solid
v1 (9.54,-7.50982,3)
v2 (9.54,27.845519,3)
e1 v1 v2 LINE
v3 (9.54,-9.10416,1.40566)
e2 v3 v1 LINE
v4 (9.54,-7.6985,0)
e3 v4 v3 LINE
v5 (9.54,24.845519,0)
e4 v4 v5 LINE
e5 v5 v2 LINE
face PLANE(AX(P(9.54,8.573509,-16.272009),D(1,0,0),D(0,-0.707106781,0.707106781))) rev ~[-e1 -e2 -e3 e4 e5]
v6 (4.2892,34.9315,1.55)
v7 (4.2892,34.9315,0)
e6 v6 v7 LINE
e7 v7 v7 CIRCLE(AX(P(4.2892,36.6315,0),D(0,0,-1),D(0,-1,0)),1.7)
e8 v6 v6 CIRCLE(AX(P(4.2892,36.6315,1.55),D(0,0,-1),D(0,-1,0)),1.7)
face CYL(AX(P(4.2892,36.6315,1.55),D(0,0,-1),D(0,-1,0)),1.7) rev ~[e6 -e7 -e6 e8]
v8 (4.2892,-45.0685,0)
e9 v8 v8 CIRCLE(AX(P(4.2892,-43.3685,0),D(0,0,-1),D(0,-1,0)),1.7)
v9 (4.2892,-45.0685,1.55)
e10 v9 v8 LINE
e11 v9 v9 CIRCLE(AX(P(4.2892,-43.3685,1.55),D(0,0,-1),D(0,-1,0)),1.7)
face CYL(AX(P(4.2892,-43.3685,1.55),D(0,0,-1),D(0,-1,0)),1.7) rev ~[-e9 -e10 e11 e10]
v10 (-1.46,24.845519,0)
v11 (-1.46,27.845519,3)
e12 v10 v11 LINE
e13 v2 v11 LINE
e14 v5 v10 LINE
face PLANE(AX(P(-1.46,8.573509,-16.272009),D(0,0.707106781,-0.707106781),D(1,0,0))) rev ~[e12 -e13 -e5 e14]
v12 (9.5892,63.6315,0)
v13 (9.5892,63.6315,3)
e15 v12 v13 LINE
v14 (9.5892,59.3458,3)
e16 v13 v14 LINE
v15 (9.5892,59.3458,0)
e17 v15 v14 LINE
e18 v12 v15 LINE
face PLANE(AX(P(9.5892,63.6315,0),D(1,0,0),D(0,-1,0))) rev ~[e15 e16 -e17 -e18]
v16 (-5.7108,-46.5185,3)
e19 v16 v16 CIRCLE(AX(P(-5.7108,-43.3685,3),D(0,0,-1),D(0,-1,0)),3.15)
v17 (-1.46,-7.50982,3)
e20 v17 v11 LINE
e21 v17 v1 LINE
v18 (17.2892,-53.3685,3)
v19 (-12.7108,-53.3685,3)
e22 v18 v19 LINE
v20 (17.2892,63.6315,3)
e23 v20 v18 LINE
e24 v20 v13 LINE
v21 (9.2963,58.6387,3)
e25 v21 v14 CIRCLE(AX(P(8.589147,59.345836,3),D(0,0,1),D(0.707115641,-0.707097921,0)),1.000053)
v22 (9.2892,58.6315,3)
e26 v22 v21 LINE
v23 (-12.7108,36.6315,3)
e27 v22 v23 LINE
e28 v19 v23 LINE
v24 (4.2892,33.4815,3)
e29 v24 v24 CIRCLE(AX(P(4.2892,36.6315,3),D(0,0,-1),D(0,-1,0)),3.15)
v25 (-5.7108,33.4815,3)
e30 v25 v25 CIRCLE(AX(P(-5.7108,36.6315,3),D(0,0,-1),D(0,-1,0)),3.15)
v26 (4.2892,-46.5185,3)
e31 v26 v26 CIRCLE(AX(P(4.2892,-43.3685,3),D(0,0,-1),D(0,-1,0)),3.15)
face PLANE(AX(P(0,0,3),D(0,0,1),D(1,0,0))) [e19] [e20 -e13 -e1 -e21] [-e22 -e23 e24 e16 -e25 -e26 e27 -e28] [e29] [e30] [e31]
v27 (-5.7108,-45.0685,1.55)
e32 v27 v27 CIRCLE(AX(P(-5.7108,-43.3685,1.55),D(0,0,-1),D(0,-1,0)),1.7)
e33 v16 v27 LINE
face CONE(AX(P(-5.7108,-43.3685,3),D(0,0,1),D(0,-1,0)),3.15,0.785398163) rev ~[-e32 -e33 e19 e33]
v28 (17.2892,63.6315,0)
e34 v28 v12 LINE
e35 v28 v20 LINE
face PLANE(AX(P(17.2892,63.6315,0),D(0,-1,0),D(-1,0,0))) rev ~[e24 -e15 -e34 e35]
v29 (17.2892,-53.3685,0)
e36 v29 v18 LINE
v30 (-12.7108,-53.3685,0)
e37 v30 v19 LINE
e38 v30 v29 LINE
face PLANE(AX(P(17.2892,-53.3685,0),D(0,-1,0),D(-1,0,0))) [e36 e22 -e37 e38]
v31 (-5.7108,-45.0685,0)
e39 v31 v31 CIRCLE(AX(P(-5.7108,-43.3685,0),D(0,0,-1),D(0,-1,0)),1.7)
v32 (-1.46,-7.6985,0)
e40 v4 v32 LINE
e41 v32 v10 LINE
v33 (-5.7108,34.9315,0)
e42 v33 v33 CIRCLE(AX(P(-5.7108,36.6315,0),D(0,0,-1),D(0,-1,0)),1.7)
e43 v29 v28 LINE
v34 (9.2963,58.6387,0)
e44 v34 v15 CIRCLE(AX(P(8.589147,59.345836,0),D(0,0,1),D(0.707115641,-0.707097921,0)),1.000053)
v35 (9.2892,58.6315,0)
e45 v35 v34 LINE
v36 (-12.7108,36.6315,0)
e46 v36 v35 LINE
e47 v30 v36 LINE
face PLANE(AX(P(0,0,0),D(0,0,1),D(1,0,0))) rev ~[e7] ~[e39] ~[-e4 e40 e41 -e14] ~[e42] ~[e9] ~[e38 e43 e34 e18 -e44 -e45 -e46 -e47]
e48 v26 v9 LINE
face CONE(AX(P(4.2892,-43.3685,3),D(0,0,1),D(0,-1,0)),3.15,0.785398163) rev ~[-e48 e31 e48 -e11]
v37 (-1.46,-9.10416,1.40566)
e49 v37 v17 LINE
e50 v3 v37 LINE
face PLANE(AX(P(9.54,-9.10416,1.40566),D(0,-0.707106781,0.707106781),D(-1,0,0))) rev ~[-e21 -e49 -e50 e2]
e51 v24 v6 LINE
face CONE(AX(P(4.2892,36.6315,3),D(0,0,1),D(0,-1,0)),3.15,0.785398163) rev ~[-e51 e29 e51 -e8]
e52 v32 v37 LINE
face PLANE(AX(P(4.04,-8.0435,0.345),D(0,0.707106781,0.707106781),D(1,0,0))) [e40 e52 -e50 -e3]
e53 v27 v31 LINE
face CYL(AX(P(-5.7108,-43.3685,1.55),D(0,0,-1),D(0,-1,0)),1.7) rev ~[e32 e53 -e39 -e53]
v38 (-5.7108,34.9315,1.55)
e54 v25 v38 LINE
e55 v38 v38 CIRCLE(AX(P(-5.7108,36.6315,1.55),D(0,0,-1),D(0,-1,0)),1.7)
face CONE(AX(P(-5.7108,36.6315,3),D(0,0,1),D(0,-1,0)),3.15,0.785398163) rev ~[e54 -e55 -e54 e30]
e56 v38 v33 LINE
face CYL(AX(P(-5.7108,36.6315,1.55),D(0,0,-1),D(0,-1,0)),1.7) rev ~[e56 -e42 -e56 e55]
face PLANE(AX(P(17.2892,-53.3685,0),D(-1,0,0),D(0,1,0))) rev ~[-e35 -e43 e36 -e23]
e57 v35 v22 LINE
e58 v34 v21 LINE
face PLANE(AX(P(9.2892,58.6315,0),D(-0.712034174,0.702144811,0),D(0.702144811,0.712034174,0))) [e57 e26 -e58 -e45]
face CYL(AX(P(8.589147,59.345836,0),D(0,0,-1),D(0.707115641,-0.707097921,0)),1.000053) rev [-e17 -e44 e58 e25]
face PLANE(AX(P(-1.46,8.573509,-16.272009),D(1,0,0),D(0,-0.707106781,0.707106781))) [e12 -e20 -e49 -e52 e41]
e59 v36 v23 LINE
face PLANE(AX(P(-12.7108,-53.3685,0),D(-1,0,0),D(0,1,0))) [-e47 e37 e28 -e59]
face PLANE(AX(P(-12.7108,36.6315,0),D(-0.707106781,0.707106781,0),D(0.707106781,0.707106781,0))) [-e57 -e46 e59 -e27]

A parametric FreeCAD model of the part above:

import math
import FreeCAD as App
import Part
import Sketcher
from FreeCAD import Vector
Q = App.Units.Quantity


def add_polygon(sketch, points):
    """Adds a closed chain of lines whose ends are joined by coincident constraints."""
    first, n = sketch.GeometryCount, len(points)
    for a, b in zip(points, points[1:] + points[:1]):
        sketch.addGeometry(Part.LineSegment(App.Vector(*a, 0), App.Vector(*b, 0)), False)
    for i in range(n):
        sketch.addConstraint(Sketcher.Constraint("Coincident", first + i, 2, first + (i + 1) % n, 1))

doc = App.newDocument("Part")
params = doc.addObject("Spreadsheet::Sheet", "Params")
for row, (alias, value) in enumerate([
    ("sketch1_radius", "1 mm"),
    ("sketch1_width", "30 mm"),
    ("sketch1_height", "117 mm"),
    ("sketch1_height2", "90 mm"),
    ("sketch1_width2", "7.7 mm"),
    ("pad1_length", "3 mm"),
    ("sketch2_width", "11 mm"),
    ("sketch2_height", "25 mm"),
    ("sketch3_diameter", "3.4 mm"),
    ("hole_diameter", "3.4 mm"),
    ("hole_csink_diameter", "6.3 mm"),
], start=1):
    params.set(f"A{row}", alias)
    params.set(f"B{row}", "=" + value)
    params.setAlias(f"B{row}", alias)

body = doc.addObject("PartDesign::Body", "Body")

sketch1 = doc.addObject("Sketcher::SketchObject", "Sketch")
body.addObject(sketch1)
sketch1.AttachmentSupport = (doc.XY_Plane, [""])
sketch1.MapMode = "FlatFace"
sketch1.addGeometry(Part.LineSegment(Vector(-12.711, -53.368, 0), Vector(17.289, -53.368, 0)), False)
sketch1.addGeometry(Part.LineSegment(Vector(17.289, -53.368, 0), Vector(17.289, 63.632, 0)), False)
sketch1.addGeometry(Part.LineSegment(Vector(17.289, 63.632, 0), Vector(9.589, 63.632, 0)), False)
sketch1.addGeometry(Part.LineSegment(Vector(9.589, 63.632, 0), Vector(9.589, 59.346, 0)), False)
sketch1.addGeometry(Part.ArcOfCircle(Part.Circle(Vector(8.589, 59.346, 0), Vector(0, 0, 1), 1), math.radians(-45), math.radians(0)), False)
sketch1.addGeometry(Part.LineSegment(Vector(9.296, 58.639, 0), Vector(9.289, 58.632, 0)), False)
sketch1.addGeometry(Part.LineSegment(Vector(9.289, 58.632, 0), Vector(-12.711, 36.632, 0)), False)
sketch1.addGeometry(Part.LineSegment(Vector(-12.711, 36.632, 0), Vector(-12.711, -53.368, 0)), False)
sketch1.addConstraint(Sketcher.Constraint("Coincident", 0, 2, 1, 1))
sketch1.addConstraint(Sketcher.Constraint("Coincident", 1, 2, 2, 1))
sketch1.addConstraint(Sketcher.Constraint("Coincident", 2, 2, 3, 1))
sketch1.addConstraint(Sketcher.Constraint("Tangent", 3, 2, 4, 2))
sketch1.addConstraint(Sketcher.Constraint("Coincident", 4, 1, 5, 1))
sketch1.addConstraint(Sketcher.Constraint("Coincident", 5, 2, 6, 1))
sketch1.addConstraint(Sketcher.Constraint("Coincident", 6, 2, 7, 1))
sketch1.addConstraint(Sketcher.Constraint("Coincident", 7, 2, 0, 1))
sketch1.addConstraint(Sketcher.Constraint("Horizontal", 0))
sketch1.addConstraint(Sketcher.Constraint("Vertical", 1))
sketch1.addConstraint(Sketcher.Constraint("Horizontal", 2))
sketch1.addConstraint(Sketcher.Constraint("Vertical", 3))
sketch1.addConstraint(Sketcher.Constraint("Vertical", 7))
sketch1.addConstraint(Sketcher.Constraint("Radius", 4, 1.0))
sketch1.addConstraint(Sketcher.Constraint("DistanceX", 0, 1, 0, 2, 30.0))
sketch1.addConstraint(Sketcher.Constraint("DistanceX", 5, 2, 3, 2, 0.3))
sketch1.addConstraint(Sketcher.Constraint("DistanceY", 1, 1, 1, 2, 117.0))
sketch1.addConstraint(Sketcher.Constraint("DistanceY", 7, 2, 7, 1, 90.0))
sketch1.addConstraint(Sketcher.Constraint("Angle", 6, Q("-135 deg")))
sketch1.addConstraint(Sketcher.Constraint("DistanceX", 2, 2, 2, 1, 7.7))
sketch1.addConstraint(Sketcher.Constraint("Angle", 5, Q("-134.5993 deg")))
sketch1.addConstraint(Sketcher.Constraint("Distance", 5, 0.01))
sketch1.addConstraint(Sketcher.Constraint("DistanceX", -1, 1, 4, 3, 8.5892))
sketch1.addConstraint(Sketcher.Constraint("DistanceY", -1, 1, 4, 3, 59.3458))
sketch1.setExpression("Constraints[13]", "Params.sketch1_radius")
sketch1.setExpression("Constraints[14]", "Params.sketch1_width")
sketch1.setExpression("Constraints[16]", "Params.sketch1_height")
sketch1.setExpression("Constraints[17]", "Params.sketch1_height2")
sketch1.setExpression("Constraints[19]", "Params.sketch1_width2")
pad1 = doc.addObject("PartDesign::Pad", "Pad")
body.addObject(pad1)
pad1.Profile = sketch1
pad1.setExpression("Length", "Params.pad1_length")

sketch2 = doc.addObject("Sketcher::SketchObject", "Sketch001")
body.addObject(sketch2)
sketch2.Placement = App.Placement(Vector(4.04, -8.0435, 0.345), App.Rotation(Vector(1, 0, 0), Vector(0, 0.707106781, -0.707106781), Vector(0, 0.707106781, 0.707106781), "ZXY"))
add_polygon(sketch2, [(6, 23), (-6, 23), (-6, -1), (6, -1)])
sketch2.addConstraint(Sketcher.Constraint("Horizontal", 0))
sketch2.addConstraint(Sketcher.Constraint("Vertical", 1))
sketch2.addConstraint(Sketcher.Constraint("Horizontal", 2))
sketch2.addConstraint(Sketcher.Constraint("Vertical", 3))
sketch2.addConstraint(Sketcher.Constraint("DistanceY", 1, 2, -1, 1, 1.5))
sketch2.addConstraint(Sketcher.Constraint("DistanceX", 0, 2, 0, 1, 11.0))
sketch2.addConstraint(Sketcher.Constraint("DistanceY", 1, 2, 1, 1, 25.0))
sketch2.addConstraint(Sketcher.Constraint("DistanceX", 0, 2, -1, 1, 5.5))
sketch2.setExpression("Constraints[9]", "Params.sketch2_width")
sketch2.setExpression("Constraints[10]", "Params.sketch2_height")
pocket1 = doc.addObject("PartDesign::Pocket", "Pocket")
body.addObject(pocket1)
pocket1.Profile = sketch2
pocket1.Type = "ThroughAll"
pocket1.Reversed = True

sketch3 = doc.addObject("Sketcher::SketchObject", "Sketch002")
body.addObject(sketch3)
sketch3.AttachmentSupport = (doc.XY_Plane, [""])
sketch3.MapMode = "FlatFace"
sketch3.AttachmentOffset = App.Placement(Vector(0, 0, 3), App.Rotation())
sketch3.addGeometry(Part.Circle(Vector(-5.7, -43.4, 0), Vector(0, 0, 1), 1.7), False)
sketch3.addGeometry(Part.Circle(Vector(4.3, -43.4, 0), Vector(0, 0, 1), 1.7), False)
sketch3.addGeometry(Part.Circle(Vector(-5.7, 36.6, 0), Vector(0, 0, 1), 1.7), False)
sketch3.addGeometry(Part.Circle(Vector(4.3, 36.6, 0), Vector(0, 0, 1), 1.7), False)
sketch3.addConstraint(Sketcher.Constraint("Equal", 0, 1))
sketch3.addConstraint(Sketcher.Constraint("Equal", 1, 2))
sketch3.addConstraint(Sketcher.Constraint("Equal", 2, 3))
sketch3.addConstraint(Sketcher.Constraint("Horizontal", 0, 3, 1, 3))
sketch3.addConstraint(Sketcher.Constraint("Horizontal", 2, 3, 3, 3))
sketch3.addConstraint(Sketcher.Constraint("Vertical", 0, 3, 2, 3))
sketch3.addConstraint(Sketcher.Constraint("Vertical", 1, 3, 3, 3))
sketch3.addConstraint(Sketcher.Constraint("Diameter", 0, 3.4))
sketch3.addConstraint(Sketcher.Constraint("DistanceX", 0, 3, 1, 3, 10.0))
sketch3.addConstraint(Sketcher.Constraint("DistanceY", 0, 3, 2, 3, 80.0))
sketch3.addConstraint(Sketcher.Constraint("DistanceX", 0, 3, -1, 1, 5.7108))
sketch3.addConstraint(Sketcher.Constraint("DistanceY", 0, 3, -1, 1, 43.3685))
sketch3.setExpression("Constraints[7]", "Params.sketch3_diameter")
doc.recompute()
hole = doc.addObject("PartDesign::Hole", "Hole")
body.addObject(hole)
hole.Profile = sketch3
hole.ThreadType = "None"
hole.setExpression("Diameter", "Params.hole_diameter")
hole.DepthType = "ThroughAll"
hole.HoleCutType = "Countersink"
hole.setExpression("HoleCutDiameter", "Params.hole_csink_diameter")
hole.HoleCutCountersinkAngle = 90

doc.recompute()
